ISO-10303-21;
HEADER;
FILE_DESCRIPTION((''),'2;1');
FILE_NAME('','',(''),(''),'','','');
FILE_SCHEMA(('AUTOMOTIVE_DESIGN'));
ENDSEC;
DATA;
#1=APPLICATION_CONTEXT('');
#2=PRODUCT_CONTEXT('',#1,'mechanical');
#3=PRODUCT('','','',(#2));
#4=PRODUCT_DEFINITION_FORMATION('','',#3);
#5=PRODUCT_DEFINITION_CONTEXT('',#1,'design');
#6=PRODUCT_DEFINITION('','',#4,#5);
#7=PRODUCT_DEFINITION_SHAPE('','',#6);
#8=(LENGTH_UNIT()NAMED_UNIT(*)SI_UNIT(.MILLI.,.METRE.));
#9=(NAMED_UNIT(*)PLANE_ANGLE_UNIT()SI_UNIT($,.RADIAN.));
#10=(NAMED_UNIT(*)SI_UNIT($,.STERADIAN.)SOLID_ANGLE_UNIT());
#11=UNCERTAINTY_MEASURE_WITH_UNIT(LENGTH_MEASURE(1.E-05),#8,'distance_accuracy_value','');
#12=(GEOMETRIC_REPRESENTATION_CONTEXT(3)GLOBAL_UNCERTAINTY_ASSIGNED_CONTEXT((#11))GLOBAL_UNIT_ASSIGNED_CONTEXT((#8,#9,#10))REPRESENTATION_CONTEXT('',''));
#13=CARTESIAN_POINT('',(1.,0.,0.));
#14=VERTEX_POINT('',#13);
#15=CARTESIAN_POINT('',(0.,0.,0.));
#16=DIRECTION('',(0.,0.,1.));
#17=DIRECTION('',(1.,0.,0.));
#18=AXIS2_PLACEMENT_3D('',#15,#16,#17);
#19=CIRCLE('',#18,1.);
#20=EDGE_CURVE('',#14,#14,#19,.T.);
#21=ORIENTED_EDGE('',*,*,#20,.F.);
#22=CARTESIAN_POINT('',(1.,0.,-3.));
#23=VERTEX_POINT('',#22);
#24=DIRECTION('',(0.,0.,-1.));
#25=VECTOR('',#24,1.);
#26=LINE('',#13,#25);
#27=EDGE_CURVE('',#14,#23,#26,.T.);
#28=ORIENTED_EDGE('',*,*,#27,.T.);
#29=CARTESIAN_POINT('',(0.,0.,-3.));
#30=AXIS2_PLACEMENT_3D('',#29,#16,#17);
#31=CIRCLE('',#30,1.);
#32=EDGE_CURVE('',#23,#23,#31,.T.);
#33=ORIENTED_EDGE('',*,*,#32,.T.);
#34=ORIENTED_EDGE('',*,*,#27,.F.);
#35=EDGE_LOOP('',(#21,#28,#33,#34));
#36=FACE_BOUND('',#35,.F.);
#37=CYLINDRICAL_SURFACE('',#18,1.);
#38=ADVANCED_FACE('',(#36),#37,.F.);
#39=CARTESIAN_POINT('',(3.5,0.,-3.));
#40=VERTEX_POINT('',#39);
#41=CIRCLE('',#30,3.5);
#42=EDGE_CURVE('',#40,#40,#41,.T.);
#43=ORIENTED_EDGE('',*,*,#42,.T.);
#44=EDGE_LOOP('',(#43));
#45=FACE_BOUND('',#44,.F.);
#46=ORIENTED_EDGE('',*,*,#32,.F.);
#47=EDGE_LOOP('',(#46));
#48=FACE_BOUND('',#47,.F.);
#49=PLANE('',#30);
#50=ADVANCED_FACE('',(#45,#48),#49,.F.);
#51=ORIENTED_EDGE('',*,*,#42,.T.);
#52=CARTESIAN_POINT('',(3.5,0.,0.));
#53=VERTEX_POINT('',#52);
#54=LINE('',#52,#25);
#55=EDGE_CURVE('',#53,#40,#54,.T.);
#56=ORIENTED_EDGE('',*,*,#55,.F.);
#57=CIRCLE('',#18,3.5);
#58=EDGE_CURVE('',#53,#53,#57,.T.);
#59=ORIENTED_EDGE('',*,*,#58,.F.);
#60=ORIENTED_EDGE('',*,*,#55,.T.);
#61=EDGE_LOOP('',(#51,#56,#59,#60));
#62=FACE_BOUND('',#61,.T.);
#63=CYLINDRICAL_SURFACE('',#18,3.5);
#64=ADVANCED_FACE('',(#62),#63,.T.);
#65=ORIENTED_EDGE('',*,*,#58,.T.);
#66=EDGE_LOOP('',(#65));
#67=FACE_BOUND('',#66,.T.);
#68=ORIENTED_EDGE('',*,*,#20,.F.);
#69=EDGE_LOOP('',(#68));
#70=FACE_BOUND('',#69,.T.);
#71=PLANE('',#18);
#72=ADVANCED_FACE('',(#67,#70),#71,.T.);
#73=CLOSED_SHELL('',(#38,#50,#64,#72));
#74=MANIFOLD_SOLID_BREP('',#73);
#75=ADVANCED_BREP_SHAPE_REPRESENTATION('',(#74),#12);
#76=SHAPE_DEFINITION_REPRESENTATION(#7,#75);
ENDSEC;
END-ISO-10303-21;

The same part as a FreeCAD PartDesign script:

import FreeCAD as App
import Part
import Sketcher

V = App.Vector

doc = App.newDocument("Part")
params = doc.addObject("Spreadsheet::Sheet", "Params")
for row, (alias, value) in enumerate([
    ("sketch1_diameter", "7 mm"),
    ("sketch1_diameter2", "2 mm"),
    ("pad1_length", "3 mm"),
], start=1):
    params.set(f"A{row}", alias)
    params.set(f"B{row}", "=" + value)
    params.setAlias(f"B{row}", alias)

body = doc.addObject("PartDesign::Body", "Body")

# Sketch on XY plane
sketch1 = body.newObject("Sketcher::SketchObject", "Sketch")
sketch1.AttachmentSupport = (doc.getObject("XY_Plane"), [""])
sketch1.MapMode = "FlatFace"
sketch1.addGeometry(Part.Circle(V(0, 0, 0), V(0, 0, 1), 3.5), False)
sketch1.addGeometry(Part.Circle(V(0, 0, 0), V(0, 0, 1), 1), False)
sketch1.addConstraint(Sketcher.Constraint("Coincident", 0, 3, -1, 1))
sketch1.addConstraint(Sketcher.Constraint("Coincident", 1, 3, -1, 1))
sketch1.addConstraint(Sketcher.Constraint("Diameter", 0, 7.0))
sketch1.addConstraint(Sketcher.Constraint("Diameter", 1, 2.0))
sketch1.setExpression("Constraints[2]", "Params.sketch1_diameter")
sketch1.setExpression("Constraints[3]", "Params.sketch1_diameter2")
pad1 = body.newObject("PartDesign::Pad", "Pad")
pad1.Profile = sketch1
pad1.setExpression("Length", "Params.pad1_length")
pad1.Reversed = True

doc.recompute()
